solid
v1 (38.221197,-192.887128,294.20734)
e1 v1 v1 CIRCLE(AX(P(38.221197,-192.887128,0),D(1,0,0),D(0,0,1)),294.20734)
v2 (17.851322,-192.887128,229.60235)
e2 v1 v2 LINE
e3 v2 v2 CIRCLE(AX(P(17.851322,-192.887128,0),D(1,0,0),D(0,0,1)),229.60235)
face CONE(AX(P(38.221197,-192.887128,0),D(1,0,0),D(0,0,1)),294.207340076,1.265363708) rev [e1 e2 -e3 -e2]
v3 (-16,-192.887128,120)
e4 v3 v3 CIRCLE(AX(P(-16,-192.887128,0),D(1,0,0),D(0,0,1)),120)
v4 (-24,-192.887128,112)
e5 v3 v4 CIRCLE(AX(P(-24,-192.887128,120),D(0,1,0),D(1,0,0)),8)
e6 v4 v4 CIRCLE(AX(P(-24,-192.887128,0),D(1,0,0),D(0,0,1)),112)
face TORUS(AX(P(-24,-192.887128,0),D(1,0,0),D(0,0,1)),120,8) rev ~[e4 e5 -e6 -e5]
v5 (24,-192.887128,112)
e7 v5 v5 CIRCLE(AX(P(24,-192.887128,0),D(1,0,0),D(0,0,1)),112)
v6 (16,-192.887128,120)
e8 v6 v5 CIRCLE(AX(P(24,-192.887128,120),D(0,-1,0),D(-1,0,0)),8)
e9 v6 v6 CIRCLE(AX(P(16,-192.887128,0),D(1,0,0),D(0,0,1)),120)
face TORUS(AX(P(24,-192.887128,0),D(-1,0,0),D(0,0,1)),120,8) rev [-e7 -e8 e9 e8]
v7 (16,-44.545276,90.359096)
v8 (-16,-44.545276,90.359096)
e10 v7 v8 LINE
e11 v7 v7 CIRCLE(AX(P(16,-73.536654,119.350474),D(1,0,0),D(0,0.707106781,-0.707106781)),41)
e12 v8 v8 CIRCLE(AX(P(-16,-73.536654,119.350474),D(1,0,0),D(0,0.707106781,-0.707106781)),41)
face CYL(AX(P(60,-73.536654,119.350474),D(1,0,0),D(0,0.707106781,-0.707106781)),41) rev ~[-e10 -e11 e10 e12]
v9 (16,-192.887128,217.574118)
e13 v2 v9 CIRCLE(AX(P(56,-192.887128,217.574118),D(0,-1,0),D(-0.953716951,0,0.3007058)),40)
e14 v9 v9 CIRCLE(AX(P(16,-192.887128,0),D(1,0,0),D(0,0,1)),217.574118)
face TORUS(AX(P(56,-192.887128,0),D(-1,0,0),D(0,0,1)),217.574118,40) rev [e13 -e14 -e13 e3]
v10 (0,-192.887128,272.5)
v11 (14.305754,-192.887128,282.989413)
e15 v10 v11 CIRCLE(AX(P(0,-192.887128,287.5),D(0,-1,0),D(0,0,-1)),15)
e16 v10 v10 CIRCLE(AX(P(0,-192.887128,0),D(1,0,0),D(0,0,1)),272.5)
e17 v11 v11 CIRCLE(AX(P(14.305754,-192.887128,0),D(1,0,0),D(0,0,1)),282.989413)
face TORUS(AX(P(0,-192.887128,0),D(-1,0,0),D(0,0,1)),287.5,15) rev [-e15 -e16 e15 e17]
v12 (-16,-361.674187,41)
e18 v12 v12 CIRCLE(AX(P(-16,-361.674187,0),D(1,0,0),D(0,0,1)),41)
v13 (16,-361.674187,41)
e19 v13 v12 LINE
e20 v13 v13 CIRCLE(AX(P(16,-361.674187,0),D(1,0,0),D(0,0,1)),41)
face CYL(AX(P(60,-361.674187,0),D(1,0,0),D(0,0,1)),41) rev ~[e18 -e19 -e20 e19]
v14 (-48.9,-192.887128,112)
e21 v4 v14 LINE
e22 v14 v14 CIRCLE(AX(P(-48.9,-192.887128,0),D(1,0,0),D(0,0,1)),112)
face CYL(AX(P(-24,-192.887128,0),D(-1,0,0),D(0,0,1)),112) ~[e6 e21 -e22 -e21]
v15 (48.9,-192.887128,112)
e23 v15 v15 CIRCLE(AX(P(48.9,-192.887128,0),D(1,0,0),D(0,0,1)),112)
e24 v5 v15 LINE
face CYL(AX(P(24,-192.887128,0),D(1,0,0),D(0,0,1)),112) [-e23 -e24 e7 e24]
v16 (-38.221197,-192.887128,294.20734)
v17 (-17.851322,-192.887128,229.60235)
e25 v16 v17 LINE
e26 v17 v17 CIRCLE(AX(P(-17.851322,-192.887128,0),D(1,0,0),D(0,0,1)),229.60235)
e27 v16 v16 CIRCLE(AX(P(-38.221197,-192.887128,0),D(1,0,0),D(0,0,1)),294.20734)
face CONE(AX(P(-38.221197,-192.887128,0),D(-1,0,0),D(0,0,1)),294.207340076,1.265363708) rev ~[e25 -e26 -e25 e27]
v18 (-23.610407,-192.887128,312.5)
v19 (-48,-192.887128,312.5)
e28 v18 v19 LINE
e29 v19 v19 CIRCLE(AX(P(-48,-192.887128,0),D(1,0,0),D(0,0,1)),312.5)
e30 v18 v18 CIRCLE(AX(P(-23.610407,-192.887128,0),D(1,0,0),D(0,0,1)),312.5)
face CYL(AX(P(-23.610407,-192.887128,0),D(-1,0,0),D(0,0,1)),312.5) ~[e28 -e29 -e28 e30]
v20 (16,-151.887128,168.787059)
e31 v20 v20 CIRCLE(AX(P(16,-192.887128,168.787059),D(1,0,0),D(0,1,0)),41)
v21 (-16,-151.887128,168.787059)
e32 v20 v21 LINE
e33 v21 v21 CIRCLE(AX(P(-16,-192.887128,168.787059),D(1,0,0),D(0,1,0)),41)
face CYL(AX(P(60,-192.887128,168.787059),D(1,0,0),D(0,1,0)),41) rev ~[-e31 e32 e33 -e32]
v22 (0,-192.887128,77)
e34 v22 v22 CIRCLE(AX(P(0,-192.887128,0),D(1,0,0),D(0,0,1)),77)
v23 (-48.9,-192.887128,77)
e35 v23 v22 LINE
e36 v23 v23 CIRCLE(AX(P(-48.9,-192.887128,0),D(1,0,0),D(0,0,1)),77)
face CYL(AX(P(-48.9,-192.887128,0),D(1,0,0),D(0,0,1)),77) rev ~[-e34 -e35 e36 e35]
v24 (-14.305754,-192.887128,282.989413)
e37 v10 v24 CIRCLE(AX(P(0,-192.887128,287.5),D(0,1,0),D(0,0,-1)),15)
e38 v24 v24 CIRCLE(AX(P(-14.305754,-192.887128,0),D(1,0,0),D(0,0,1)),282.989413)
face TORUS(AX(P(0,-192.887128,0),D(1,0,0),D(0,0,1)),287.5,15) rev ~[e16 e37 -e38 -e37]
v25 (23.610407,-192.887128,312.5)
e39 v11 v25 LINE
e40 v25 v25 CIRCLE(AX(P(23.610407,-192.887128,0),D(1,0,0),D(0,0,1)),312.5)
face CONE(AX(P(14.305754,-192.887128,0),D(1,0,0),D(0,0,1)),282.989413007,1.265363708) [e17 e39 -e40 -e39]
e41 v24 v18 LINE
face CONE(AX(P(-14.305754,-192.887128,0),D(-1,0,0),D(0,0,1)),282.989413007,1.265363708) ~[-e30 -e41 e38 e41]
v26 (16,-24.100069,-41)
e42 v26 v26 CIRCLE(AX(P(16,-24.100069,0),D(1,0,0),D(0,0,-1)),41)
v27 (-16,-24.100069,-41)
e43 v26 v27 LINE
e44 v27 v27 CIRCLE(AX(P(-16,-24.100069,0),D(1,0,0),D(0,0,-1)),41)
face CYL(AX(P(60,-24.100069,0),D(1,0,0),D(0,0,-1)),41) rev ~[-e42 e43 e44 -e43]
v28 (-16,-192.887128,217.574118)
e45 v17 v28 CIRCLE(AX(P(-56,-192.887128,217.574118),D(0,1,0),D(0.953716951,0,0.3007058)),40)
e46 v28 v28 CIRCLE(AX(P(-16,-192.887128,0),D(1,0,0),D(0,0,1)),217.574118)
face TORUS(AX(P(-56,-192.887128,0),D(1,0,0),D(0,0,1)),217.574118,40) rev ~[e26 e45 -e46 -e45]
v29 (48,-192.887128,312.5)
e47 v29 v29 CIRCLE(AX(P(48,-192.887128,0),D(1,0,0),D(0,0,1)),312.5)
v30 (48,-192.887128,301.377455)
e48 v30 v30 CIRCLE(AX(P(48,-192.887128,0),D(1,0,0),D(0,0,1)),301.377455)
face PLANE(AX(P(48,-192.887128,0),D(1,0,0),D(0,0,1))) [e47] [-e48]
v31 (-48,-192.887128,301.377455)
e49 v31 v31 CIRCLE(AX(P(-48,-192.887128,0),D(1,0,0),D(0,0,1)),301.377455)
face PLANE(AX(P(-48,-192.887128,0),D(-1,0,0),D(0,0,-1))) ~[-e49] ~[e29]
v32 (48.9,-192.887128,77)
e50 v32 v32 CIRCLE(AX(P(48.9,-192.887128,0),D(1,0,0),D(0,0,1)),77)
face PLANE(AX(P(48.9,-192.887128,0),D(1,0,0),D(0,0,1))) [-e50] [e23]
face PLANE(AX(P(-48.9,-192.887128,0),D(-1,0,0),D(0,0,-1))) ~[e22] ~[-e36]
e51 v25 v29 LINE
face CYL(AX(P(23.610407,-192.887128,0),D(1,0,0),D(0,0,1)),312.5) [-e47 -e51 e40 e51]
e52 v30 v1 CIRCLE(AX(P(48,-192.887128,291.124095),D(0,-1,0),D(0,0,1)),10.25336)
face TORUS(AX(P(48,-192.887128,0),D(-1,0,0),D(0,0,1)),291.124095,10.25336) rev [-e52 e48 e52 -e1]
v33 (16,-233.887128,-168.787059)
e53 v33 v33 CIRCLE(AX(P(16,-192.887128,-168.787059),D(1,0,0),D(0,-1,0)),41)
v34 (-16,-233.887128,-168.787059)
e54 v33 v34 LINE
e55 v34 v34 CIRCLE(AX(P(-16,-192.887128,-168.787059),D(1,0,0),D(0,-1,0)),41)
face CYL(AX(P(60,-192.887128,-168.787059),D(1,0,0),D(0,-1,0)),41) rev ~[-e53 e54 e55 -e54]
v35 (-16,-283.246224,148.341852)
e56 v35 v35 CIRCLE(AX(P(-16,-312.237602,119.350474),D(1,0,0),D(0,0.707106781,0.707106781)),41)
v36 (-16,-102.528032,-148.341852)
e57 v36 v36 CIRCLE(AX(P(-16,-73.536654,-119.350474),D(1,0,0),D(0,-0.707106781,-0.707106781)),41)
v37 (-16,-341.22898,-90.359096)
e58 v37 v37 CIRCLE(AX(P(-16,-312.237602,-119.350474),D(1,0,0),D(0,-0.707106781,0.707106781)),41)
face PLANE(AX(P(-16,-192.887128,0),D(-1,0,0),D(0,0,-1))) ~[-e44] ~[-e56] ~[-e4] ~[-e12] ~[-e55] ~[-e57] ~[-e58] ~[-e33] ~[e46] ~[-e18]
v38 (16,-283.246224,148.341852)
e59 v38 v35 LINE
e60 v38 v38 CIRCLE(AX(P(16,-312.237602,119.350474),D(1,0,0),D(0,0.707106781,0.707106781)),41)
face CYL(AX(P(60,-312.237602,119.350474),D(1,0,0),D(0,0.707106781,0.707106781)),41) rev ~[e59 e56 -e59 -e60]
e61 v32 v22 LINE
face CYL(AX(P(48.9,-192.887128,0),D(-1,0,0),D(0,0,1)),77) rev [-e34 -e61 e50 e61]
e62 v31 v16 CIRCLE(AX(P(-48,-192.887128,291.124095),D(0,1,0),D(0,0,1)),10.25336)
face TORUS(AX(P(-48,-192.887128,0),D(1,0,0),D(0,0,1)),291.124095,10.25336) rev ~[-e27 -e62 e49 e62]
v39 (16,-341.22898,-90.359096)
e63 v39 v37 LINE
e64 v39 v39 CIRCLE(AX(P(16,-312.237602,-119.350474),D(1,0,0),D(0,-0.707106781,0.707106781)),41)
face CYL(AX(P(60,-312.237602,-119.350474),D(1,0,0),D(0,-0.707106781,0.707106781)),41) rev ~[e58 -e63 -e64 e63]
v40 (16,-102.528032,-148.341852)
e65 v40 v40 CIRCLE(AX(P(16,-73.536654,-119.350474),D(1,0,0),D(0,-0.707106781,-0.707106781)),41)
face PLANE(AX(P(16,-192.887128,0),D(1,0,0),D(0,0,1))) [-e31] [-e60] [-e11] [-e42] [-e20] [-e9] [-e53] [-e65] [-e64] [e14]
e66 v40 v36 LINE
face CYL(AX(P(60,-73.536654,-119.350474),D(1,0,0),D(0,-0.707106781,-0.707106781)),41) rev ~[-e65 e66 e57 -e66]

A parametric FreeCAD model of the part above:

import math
import FreeCAD as App
import Part
import Sketcher
from FreeCAD import Vector
Q = App.Units.Quantity

doc = App.newDocument("Part")
body = doc.addObject("PartDesign::Body", "Body")

sketch1 = body.newObject("Sketcher::SketchObject", "Sketch")
sketch1.AttachmentSupport = (doc.getObject("XY_Plane"), [""])
sketch1.MapMode = "FlatFace"
sketch1.addGeometry([
    Part.LineSegment(Vector(23.610407, 119.612872, 0), Vector(14.305754, 90.102285, 0)),
    Part.ArcOfCircle(Part.Circle(Vector(0, 94.612872, 0), Vector(0, 0, 1), 15), math.radians(-90), math.radians(-17.5)),
    Part.LineSegment(Vector(0, 79.612872, 0), Vector(0, -115.887128, 0)),
    Part.LineSegment(Vector(0, -115.887128, 0), Vector(48.9, -115.887128, 0)),
    Part.LineSegment(Vector(48.9, -115.887128, 0), Vector(48.9, -80.887128, 0)),
    Part.LineSegment(Vector(48.9, -80.887128, 0), Vector(24, -80.887128, 0)),
    Part.ArcOfCircle(Part.Circle(Vector(24, -72.887128, 0), Vector(0, 0, 1), 8), math.radians(180), math.radians(270)),
    Part.LineSegment(Vector(16, -72.887128, 0), Vector(16, 24.68699, 0)),
    Part.ArcOfCircle(Part.Circle(Vector(56, 24.68699, 0), Vector(0, 0, 1), 40), math.radians(162.5), math.radians(180)),
    Part.LineSegment(Vector(17.851322, 36.715222, 0), Vector(38.221197, 101.320212, 0)),
    Part.ArcOfCircle(Part.Circle(Vector(48, 98.236967, 0), Vector(0, 0, 1), 10.25336), math.radians(90), math.radians(162.5)),
    Part.LineSegment(Vector(48, 108.490327, 0), Vector(48, 119.612872, 0)),
    Part.LineSegment(Vector(48, 119.612872, 0), Vector(23.610407, 119.612872, 0)),
], False)
sketch1.addGeometry(Part.LineSegment(Vector(0, -192.887128, 0), Vector(56, -192.887128, 0)), True)
sketch1.addConstraint([
    Sketcher.Constraint("Tangent", 0, 2, 1, 2),
    Sketcher.Constraint("Coincident", 1, 1, 2, 1),
    Sketcher.Constraint("Coincident", 2, 2, 3, 1),
    Sketcher.Constraint("Coincident", 3, 2, 4, 1),
    Sketcher.Constraint("Coincident", 4, 2, 5, 1),
    Sketcher.Constraint("Tangent", 5, 2, 6, 2),
    Sketcher.Constraint("Tangent", 6, 1, 7, 1),
    Sketcher.Constraint("Tangent", 7, 2, 8, 2),
    Sketcher.Constraint("Tangent", 8, 1, 9, 1),
    Sketcher.Constraint("Tangent", 9, 2, 10, 2),
    Sketcher.Constraint("Coincident", 10, 1, 11, 1),
    Sketcher.Constraint("Coincident", 11, 2, 12, 1),
    Sketcher.Constraint("Coincident", 12, 2, 0, 1),
    Sketcher.Constraint("Vertical", 2),
    Sketcher.Constraint("Horizontal", 3),
    Sketcher.Constraint("Vertical", 4),
    Sketcher.Constraint("Horizontal", 5),
    Sketcher.Constraint("Vertical", 7),
    Sketcher.Constraint("Vertical", 11),
    Sketcher.Constraint("Horizontal", 12),
    Sketcher.Constraint("Horizontal", 13),
    Sketcher.Constraint("PointOnObject", 1, 3, -2),
    Sketcher.Constraint("PointOnObject", 1, 1, -2),
    Sketcher.Constraint("PointOnObject", 13, 1, -2),
    Sketcher.Constraint("Parallel", 0, 9),
    Sketcher.Constraint("Vertical", 8, 3, 13, 2),
    Sketcher.Constraint("Radius", 1, 15.0),
    Sketcher.Constraint("Radius", 6, 8.0),
    Sketcher.Constraint("Radius", 8, 40.0),
    Sketcher.Constraint("DistanceX", 13, 1, 13, 2, 56.0),
    Sketcher.Constraint("DistanceY", 4, 1, 4, 2, 35.0),
    Sketcher.Constraint("DistanceX", 3, 1, 3, 2, 48.9),
    Sketcher.Constraint("DistanceY", 2, 2, 2, 1, 195.5),
    Sketcher.Constraint("DistanceX", -1, 1, 10, 3, 48.0),
    Sketcher.Constraint("DistanceX", -1, 1, 10, 1, 48.0),
    Sketcher.Constraint("Angle", 0, Q("-107.5 deg")),
    Sketcher.Constraint("DistanceY", 1, 3, 11, 2, 25.0),
    Sketcher.Constraint("DistanceY", 13, 1, 2, 2, 77.0),
    Sketcher.Constraint("Radius", 10, 10.25336),
    Sketcher.Constraint("DistanceY", 7, 1, 7, 2, 97.574118),
    Sketcher.Constraint("DistanceY", -1, 1, 1, 3, 94.612872),
])
revolution = body.newObject("PartDesign::Revolution", "Revolution")
revolution.Profile = sketch1
revolution.ReferenceAxis = (sketch1, ["Axis0"])
revolution.Angle = 360
doc.recompute()

mirrored = body.newObject("PartDesign::Mirrored", "Mirrored")
mirrored.Originals = [revolution]
mirrored.MirrorPlane = (doc.getObject("YZ_Plane"), [""])
body.Tip = mirrored

sketch2 = body.newObject("Sketcher::SketchObject", "Sketch001")
sketch2.AttachmentSupport = (doc.getObject("YZ_Plane"), [""])
sketch2.MapMode = "FlatFace"
sketch2.AttachmentOffset = App.Placement(Vector(0, 0, 60), App.Rotation())
sketch2.addGeometry(Part.Circle(Vector(-24.100069, 0, 0), Vector(0, 0, 1), 41), False)
sketch2.addConstraint([
    Sketcher.Constraint("PointOnObject", 0, 3, -1),
    Sketcher.Constraint("Diameter", 0, 82.0),
    Sketcher.Constraint("DistanceX", 0, 3, -1, 1, 24.100069),
])
pocket1 = body.newObject("PartDesign::Pocket", "Pocket")
pocket1.Profile = sketch2
pocket1.Length = 120
doc.recompute()

datumline = body.newObject("PartDesign::Line", "DatumLine")
datumline.Placement = App.Placement(Vector(0, -192.887128, 0), App.Rotation(Vector(0, 0, 1), Vector(1, 0, 0)))
polarpattern = body.newObject("PartDesign::PolarPattern", "PolarPattern")
polarpattern.Originals = [pocket1]
polarpattern.Axis = (datumline, [""])
polarpattern.Angle = 360
polarpattern.Occurrences = 8
body.Tip = polarpattern

doc.recompute()
